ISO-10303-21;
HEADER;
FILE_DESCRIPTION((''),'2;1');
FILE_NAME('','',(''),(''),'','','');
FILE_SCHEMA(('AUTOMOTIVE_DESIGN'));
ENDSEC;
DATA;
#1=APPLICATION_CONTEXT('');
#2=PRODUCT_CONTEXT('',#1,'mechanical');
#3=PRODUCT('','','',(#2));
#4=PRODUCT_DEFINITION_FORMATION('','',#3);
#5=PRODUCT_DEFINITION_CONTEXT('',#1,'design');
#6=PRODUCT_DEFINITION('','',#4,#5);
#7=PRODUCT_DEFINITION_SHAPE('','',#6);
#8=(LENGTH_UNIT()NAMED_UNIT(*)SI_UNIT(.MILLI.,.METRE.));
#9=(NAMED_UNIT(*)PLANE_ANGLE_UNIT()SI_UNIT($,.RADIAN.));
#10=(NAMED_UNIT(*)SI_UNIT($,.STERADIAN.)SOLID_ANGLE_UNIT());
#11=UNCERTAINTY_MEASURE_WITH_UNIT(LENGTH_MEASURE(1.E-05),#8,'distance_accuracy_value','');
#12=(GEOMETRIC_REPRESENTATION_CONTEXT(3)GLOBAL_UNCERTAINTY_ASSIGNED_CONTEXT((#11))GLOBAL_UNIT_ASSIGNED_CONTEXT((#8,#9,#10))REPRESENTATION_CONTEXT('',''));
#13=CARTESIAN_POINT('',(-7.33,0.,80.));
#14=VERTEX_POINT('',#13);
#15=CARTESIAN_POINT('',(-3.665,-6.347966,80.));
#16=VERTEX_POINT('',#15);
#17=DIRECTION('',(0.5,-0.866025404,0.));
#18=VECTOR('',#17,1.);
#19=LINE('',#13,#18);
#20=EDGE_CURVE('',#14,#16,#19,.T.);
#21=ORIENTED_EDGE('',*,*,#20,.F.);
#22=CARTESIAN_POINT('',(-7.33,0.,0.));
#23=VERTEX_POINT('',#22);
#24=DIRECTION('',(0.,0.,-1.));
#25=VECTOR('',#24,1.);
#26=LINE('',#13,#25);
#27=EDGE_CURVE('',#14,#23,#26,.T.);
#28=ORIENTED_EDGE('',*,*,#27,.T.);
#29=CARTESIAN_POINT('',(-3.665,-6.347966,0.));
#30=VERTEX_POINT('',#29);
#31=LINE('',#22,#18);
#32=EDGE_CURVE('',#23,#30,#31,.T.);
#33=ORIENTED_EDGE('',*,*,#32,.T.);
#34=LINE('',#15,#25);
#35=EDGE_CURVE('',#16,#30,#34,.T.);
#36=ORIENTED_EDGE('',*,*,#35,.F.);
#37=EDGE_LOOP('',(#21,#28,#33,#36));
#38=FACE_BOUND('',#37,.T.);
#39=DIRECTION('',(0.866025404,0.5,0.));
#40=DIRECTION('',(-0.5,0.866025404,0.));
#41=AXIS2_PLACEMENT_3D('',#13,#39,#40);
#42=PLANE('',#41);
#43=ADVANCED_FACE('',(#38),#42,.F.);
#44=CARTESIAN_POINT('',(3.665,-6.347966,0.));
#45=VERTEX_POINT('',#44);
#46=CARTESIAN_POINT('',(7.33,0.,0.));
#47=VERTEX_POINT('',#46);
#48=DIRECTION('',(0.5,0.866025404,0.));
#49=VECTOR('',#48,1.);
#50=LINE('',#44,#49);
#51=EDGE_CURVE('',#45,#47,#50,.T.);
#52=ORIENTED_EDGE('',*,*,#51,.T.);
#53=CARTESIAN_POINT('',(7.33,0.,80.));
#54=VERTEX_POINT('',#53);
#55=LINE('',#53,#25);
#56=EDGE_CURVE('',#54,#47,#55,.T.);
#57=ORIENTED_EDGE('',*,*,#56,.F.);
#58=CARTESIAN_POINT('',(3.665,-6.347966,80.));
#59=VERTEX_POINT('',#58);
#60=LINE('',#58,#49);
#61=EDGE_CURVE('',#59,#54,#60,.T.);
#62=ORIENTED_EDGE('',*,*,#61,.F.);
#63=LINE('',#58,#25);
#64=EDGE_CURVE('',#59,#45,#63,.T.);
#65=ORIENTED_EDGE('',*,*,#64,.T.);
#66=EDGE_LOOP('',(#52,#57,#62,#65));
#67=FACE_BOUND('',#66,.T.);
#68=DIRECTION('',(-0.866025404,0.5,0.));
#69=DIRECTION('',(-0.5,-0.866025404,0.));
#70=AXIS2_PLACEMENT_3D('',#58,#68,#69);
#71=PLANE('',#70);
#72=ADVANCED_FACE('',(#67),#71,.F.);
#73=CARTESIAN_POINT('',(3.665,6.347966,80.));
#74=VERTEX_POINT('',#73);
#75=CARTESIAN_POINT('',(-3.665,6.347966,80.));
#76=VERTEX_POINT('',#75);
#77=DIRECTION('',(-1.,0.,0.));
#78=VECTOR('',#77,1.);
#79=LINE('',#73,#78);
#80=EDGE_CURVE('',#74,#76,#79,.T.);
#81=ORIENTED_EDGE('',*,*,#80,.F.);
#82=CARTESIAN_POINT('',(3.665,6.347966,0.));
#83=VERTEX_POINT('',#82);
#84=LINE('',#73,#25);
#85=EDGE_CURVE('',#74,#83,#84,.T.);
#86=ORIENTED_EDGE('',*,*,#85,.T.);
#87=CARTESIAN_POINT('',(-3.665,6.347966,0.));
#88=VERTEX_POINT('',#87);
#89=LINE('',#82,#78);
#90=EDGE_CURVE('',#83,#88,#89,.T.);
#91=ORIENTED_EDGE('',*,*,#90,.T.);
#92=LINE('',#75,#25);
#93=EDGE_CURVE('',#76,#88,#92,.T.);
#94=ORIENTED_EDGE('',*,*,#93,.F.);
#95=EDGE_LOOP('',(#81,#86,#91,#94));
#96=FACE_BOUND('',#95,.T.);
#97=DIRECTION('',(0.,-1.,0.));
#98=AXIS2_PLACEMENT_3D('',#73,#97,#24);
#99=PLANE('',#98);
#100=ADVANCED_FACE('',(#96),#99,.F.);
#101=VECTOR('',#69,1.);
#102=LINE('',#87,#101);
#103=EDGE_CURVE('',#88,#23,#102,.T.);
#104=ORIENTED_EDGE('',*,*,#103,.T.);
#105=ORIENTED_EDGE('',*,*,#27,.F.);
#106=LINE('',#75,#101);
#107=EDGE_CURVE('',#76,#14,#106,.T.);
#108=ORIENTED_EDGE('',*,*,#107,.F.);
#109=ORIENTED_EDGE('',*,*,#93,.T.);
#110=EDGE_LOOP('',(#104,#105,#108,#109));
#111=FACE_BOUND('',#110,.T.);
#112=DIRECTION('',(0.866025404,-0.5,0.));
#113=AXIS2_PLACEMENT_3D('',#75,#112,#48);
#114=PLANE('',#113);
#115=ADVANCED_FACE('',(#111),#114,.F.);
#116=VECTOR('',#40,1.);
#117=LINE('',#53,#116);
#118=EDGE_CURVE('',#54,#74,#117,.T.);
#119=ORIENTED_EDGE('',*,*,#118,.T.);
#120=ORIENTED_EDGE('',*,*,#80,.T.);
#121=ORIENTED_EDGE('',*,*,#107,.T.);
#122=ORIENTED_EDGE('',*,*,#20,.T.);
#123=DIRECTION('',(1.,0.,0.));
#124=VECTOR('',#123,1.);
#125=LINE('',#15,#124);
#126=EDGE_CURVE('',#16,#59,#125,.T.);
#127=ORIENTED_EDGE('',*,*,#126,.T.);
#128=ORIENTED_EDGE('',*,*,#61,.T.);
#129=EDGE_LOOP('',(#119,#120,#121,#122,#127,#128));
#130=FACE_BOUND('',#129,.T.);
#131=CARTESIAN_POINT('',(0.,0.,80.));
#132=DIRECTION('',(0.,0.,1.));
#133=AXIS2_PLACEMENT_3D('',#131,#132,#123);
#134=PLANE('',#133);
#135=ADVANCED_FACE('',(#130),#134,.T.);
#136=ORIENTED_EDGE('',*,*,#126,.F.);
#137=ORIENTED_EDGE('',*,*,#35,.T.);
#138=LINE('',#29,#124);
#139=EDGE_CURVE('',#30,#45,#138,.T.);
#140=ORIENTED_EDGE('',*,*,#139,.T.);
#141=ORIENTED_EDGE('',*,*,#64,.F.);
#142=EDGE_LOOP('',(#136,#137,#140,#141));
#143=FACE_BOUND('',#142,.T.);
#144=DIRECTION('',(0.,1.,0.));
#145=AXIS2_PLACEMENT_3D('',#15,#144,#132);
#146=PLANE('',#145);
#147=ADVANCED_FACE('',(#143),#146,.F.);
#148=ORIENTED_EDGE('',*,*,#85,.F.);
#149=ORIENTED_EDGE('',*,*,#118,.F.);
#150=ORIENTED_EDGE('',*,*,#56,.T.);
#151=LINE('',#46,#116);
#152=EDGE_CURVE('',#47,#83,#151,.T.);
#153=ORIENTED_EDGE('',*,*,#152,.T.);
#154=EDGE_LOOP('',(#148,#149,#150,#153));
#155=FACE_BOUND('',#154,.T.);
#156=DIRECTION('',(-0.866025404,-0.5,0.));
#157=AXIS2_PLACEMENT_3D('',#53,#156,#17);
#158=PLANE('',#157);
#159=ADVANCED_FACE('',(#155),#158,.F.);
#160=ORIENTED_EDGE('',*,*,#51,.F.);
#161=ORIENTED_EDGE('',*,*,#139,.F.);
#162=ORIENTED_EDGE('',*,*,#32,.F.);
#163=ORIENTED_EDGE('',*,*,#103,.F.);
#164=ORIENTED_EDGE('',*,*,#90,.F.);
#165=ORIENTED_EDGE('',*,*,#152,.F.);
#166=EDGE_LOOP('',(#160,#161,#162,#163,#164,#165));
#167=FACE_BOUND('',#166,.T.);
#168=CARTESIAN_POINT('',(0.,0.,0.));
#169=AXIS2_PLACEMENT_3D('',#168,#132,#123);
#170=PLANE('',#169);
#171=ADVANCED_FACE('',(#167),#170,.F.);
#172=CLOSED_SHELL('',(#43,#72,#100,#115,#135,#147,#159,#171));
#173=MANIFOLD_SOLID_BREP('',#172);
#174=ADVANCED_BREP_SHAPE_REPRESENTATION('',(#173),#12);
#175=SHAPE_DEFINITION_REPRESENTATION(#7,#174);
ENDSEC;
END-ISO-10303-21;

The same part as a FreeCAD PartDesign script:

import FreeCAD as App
import Part
import Sketcher

V = App.Vector
Q = App.Units.Quantity

doc = App.newDocument("Part")
body = doc.addObject("PartDesign::Body", "Body")

sketch1 = body.newObject("Sketcher::SketchObject", "Sketch")
sketch1.AttachmentSupport = (doc.getObject("XY_Plane"), [""])
sketch1.MapMode = "FlatFace"
sketch1.addGeometry([
    Part.LineSegment(V(-4, 6, 0), V(-7, 0, 0)),
    Part.LineSegment(V(-7, 0, 0), V(-4, -6, 0)),
    Part.LineSegment(V(-4, -6, 0), V(4, -6, 0)),
    Part.LineSegment(V(4, -6, 0), V(7, 0, 0)),
    Part.LineSegment(V(7, 0, 0), V(4, 6, 0)),
    Part.LineSegment(V(4, 6, 0), V(-4, 6, 0)),
], False)
sketch1.addConstraint([
    Sketcher.Constraint("Coincident", 0, 2, 1, 1),
    Sketcher.Constraint("Coincident", 1, 2, 2, 1),
    Sketcher.Constraint("Coincident", 2, 2, 3, 1),
    Sketcher.Constraint("Coincident", 3, 2, 4, 1),
    Sketcher.Constraint("Coincident", 4, 2, 5, 1),
    Sketcher.Constraint("Coincident", 5, 2, 0, 1),
    Sketcher.Constraint("Horizontal", 2),
    Sketcher.Constraint("Horizontal", 5),
    Sketcher.Constraint("Symmetric", 0, 2, 3, 2, -1, 1),
    Sketcher.Constraint("Symmetric", 1, 2, 4, 2, -1, 1),
    Sketcher.Constraint("PointOnObject", 0, 2, -1),
    Sketcher.Constraint("Parallel", 0, 3),
    Sketcher.Constraint("Vertical", 2, 2, 4, 2),
    Sketcher.Constraint("Angle", 0, Q("-120 deg")),
    Sketcher.Constraint("DistanceX", 2, 1, 2, 2, Q("7.33 mm")),
    Sketcher.Constraint("Distance", 0, Q("7.33 mm")),
])
pad1 = body.newObject("PartDesign::Pad", "Pad")
pad1.Profile = sketch1
pad1.Length = 80

doc.recompute()
